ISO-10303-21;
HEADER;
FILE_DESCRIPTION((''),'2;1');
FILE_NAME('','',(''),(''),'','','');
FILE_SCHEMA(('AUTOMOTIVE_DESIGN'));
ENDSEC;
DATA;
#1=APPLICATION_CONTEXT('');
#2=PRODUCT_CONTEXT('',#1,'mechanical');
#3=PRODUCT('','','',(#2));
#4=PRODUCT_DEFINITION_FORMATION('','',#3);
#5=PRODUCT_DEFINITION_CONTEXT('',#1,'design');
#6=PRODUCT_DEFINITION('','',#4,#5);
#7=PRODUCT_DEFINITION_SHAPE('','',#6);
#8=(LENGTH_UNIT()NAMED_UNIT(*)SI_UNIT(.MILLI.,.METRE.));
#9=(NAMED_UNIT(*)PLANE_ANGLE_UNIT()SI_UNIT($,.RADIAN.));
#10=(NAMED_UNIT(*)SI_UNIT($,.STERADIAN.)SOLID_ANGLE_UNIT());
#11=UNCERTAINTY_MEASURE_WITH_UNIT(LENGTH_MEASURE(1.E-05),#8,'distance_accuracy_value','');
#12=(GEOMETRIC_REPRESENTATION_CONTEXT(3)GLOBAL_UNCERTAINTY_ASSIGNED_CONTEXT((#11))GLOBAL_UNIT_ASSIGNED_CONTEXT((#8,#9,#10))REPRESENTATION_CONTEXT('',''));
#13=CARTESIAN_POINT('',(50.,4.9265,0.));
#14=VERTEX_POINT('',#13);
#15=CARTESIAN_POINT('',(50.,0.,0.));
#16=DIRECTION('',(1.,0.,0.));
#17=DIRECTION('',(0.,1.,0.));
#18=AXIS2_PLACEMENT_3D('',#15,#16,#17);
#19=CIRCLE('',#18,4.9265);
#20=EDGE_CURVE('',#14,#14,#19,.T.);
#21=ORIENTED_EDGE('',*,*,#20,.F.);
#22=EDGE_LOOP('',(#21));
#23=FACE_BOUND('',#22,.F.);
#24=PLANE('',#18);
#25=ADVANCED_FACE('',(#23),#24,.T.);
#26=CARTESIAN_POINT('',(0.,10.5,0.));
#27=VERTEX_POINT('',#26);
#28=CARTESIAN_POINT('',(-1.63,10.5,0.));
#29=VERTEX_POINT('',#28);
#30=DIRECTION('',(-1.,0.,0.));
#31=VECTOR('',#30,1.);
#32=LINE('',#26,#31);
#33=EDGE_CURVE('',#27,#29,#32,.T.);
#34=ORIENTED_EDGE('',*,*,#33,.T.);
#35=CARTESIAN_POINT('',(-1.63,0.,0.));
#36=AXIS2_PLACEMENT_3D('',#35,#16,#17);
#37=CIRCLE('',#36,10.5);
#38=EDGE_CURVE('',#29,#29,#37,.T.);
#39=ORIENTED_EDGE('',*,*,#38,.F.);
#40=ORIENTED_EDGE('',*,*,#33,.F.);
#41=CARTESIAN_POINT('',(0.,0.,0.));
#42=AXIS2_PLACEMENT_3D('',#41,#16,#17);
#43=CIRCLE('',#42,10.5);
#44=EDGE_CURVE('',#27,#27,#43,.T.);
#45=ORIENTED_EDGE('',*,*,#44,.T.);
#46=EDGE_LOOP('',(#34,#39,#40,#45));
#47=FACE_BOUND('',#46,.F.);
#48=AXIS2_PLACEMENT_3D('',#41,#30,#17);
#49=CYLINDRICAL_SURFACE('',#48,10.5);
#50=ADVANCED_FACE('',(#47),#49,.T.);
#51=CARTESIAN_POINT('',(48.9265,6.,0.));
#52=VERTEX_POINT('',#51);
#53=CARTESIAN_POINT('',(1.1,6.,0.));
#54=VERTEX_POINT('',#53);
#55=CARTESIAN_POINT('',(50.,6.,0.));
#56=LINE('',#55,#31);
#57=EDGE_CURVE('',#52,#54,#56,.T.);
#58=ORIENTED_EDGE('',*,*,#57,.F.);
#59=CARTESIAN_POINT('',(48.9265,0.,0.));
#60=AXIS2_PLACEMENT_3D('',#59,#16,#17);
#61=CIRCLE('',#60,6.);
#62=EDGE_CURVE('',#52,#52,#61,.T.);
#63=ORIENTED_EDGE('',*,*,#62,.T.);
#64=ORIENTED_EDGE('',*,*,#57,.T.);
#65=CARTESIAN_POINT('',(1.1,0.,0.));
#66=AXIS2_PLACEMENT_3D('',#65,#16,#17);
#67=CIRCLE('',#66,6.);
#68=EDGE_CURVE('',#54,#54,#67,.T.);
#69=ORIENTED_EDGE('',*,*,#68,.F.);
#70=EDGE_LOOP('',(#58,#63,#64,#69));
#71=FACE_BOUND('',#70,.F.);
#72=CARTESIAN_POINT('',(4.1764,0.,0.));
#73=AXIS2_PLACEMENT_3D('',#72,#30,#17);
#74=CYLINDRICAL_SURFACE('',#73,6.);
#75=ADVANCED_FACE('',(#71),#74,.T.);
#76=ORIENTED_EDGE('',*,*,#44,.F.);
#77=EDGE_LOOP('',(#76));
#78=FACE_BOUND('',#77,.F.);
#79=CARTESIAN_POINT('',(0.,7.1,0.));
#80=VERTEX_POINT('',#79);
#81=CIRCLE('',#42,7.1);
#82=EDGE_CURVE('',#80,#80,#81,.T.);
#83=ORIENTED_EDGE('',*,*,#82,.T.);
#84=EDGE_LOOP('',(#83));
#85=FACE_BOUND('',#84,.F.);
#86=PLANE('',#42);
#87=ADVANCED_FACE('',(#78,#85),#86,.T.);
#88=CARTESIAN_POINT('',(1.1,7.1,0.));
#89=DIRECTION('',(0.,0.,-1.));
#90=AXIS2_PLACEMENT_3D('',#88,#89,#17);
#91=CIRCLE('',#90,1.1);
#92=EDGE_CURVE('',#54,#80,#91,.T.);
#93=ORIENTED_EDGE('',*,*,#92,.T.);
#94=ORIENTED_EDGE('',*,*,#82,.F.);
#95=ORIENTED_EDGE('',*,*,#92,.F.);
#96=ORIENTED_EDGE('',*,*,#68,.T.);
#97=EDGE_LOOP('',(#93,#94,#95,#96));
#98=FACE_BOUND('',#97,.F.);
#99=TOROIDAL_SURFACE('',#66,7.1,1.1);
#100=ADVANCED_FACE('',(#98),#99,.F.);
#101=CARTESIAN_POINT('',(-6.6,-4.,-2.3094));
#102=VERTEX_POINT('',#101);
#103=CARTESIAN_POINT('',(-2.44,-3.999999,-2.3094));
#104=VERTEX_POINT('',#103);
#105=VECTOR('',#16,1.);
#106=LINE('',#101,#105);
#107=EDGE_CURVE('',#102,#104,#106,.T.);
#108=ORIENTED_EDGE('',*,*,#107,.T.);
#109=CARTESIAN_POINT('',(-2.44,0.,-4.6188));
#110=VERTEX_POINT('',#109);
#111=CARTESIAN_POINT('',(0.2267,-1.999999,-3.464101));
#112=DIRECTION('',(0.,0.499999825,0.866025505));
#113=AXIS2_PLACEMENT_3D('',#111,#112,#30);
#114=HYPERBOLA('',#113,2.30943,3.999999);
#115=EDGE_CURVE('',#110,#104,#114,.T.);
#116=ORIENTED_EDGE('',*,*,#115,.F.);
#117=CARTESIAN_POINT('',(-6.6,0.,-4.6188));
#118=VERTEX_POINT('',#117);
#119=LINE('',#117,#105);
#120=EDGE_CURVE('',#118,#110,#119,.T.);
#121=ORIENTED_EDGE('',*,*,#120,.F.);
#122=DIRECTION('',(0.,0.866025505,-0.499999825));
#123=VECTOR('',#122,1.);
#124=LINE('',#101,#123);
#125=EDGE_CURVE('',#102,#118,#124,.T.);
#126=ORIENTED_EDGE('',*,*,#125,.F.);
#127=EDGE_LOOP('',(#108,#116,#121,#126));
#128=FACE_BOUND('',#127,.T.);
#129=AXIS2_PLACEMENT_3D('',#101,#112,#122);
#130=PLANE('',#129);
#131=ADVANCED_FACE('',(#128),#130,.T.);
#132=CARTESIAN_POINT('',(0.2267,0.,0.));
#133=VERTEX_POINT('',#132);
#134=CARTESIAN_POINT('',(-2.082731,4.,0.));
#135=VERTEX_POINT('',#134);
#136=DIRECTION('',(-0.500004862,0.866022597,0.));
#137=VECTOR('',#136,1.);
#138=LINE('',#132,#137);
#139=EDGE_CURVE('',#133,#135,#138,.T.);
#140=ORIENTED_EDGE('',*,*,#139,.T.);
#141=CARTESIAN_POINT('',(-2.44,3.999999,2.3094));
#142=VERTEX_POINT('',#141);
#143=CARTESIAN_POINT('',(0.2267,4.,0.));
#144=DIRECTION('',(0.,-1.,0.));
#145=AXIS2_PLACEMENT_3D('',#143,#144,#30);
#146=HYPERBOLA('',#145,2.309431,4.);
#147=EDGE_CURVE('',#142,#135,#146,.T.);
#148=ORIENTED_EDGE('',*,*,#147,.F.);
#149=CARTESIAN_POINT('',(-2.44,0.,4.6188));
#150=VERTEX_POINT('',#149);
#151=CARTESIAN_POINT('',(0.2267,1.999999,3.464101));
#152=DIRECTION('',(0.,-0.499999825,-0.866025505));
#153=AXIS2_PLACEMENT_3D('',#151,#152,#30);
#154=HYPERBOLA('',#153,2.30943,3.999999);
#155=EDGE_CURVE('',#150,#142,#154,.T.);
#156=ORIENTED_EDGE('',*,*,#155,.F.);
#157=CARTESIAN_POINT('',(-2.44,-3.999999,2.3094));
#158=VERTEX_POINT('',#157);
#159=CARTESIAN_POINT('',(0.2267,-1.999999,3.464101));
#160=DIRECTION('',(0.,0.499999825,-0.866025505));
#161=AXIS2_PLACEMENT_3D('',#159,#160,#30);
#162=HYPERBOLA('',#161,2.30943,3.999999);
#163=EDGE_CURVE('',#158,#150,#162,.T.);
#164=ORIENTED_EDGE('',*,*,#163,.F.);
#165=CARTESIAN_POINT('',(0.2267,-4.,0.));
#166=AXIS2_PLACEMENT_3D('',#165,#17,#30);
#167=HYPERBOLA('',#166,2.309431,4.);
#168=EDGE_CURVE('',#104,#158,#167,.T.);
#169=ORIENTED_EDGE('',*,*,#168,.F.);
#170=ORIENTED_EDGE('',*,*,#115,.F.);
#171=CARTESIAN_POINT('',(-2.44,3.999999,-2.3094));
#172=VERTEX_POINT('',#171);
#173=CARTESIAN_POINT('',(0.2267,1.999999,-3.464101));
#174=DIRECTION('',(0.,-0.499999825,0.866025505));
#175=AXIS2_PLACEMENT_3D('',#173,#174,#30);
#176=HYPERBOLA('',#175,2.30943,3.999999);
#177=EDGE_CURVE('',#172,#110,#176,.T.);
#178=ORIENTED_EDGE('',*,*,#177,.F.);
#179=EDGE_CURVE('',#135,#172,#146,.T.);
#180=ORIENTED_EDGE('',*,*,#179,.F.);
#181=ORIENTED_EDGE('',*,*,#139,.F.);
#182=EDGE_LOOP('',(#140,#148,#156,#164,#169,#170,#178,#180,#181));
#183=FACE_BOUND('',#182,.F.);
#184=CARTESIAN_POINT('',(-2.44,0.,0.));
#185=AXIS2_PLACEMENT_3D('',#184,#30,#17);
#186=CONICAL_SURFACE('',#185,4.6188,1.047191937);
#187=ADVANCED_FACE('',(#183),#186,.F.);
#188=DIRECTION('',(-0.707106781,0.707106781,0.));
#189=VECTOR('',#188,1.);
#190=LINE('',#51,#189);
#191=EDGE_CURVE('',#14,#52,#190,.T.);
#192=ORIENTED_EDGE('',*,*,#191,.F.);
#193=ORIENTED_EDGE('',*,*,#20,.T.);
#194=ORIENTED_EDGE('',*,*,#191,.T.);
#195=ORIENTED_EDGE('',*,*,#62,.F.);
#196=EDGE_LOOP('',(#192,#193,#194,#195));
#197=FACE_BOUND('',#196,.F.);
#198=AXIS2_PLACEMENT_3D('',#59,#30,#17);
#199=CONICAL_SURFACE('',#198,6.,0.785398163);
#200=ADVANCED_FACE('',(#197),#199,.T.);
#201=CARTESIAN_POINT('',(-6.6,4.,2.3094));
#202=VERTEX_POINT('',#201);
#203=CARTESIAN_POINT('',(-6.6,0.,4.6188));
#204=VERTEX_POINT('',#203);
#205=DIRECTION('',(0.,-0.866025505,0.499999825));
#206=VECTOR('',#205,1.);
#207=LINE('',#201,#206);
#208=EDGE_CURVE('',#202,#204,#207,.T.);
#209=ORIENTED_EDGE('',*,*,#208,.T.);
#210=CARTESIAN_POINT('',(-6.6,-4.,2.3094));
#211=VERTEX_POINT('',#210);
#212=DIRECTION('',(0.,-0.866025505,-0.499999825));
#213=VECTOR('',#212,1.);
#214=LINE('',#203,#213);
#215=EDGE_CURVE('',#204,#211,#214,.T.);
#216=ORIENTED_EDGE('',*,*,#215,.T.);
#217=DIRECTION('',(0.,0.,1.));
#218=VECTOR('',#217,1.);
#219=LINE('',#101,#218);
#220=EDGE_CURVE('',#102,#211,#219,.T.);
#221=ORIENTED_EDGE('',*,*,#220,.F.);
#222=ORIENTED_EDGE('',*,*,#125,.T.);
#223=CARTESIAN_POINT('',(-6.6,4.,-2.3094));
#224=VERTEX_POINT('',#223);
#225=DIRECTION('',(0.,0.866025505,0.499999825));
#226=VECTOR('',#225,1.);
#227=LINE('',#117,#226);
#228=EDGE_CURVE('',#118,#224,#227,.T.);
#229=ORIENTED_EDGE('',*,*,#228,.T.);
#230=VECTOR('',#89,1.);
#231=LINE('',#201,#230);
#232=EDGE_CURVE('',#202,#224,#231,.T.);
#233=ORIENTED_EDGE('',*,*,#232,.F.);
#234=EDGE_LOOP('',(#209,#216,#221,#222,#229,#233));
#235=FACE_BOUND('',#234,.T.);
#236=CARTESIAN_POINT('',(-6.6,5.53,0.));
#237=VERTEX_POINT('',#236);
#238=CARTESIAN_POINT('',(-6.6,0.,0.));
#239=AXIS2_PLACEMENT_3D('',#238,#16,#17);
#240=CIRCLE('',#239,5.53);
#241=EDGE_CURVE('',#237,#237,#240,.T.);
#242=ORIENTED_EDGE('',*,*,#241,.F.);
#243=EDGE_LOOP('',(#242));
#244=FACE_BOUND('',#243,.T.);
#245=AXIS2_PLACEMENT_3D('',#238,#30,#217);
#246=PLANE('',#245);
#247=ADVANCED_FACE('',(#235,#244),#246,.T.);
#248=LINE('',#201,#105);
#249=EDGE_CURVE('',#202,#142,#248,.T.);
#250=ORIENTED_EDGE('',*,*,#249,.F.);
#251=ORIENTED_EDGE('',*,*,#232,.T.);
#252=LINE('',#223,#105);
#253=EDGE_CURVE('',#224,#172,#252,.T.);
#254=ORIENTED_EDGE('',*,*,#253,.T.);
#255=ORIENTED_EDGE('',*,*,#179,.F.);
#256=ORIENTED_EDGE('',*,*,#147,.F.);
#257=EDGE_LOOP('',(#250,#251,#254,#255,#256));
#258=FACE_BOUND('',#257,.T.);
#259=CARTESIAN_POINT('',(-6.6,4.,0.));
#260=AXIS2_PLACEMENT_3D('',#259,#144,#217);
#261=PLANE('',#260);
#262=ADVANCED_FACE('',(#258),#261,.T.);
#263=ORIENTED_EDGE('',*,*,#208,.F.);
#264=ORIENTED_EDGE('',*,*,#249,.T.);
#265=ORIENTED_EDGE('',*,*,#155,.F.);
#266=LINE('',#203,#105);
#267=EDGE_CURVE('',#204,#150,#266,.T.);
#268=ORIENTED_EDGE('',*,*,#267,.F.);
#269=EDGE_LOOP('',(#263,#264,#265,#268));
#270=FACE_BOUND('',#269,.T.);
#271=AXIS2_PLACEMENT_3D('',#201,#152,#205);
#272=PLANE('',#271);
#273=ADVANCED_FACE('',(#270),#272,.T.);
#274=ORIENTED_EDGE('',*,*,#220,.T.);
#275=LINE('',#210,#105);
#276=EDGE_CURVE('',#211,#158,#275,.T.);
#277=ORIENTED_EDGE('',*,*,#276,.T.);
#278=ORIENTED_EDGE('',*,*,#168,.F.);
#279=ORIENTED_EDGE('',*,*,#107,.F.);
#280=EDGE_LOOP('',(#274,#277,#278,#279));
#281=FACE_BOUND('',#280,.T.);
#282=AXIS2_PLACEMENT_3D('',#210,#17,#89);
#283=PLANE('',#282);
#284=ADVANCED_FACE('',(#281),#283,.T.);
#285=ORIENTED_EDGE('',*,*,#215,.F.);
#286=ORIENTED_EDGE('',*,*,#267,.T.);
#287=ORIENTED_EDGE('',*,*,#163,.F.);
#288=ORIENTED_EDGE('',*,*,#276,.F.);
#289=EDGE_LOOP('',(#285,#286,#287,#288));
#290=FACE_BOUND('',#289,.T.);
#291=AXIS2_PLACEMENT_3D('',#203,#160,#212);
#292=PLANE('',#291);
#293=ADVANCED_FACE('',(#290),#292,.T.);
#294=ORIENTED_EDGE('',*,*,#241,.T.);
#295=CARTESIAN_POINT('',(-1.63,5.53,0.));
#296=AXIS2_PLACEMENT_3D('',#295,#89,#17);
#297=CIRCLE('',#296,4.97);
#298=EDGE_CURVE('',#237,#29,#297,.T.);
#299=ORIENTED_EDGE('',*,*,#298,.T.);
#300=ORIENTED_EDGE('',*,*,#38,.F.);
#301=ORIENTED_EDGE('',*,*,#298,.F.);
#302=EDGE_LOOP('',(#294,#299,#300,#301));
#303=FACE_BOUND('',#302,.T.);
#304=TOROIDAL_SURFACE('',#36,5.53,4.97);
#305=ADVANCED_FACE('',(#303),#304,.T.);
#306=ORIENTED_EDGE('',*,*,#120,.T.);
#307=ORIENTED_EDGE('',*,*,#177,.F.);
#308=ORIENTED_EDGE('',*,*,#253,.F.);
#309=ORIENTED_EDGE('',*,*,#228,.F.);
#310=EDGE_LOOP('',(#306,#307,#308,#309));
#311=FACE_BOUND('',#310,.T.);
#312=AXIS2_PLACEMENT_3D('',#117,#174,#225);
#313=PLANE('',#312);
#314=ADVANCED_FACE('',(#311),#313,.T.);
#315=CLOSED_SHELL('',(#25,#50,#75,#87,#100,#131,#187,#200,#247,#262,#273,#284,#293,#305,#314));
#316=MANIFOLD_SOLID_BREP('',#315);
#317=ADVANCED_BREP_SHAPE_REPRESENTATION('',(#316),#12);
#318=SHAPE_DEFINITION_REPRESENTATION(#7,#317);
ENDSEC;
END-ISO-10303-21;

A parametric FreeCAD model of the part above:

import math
import FreeCAD as App
import Part
import Sketcher
Q = App.Units.Quantity


def edges_at(feature, points):
    """Names of the edges that pass closest to the given points."""
    edges = feature.Shape.Edges
    near = lambda p: min(range(len(edges)), key=lambda i: edges[i].distToShape(Part.Vertex(*p))[0])
    return sorted({f"Edge{near(p) + 1}" for p in points})


def add_polygon(sketch, points):
    """Adds a closed chain of lines whose ends are joined by coincident constraints."""
    first, n = sketch.GeometryCount, len(points)
    for a, b in zip(points, points[1:] + points[:1]):
        sketch.addGeometry(Part.LineSegment(App.Vector(*a, 0), App.Vector(*b, 0)), False)
    for i in range(n):
        sketch.addConstraint(Sketcher.Constraint("Coincident", first + i, 2, first + (i + 1) % n, 1))

doc = App.newDocument("Part")
body = doc.addObject("PartDesign::Body", "Body")

# Sketch on XY plane
sketch1 = body.newObject("Sketcher::SketchObject", "Sketch")
sketch1.AttachmentSupport = (doc.getObject("XY_Plane"), [""])
sketch1.MapMode = "FlatFace"
add_polygon(sketch1, [(0.2, 0), (50, 0), (50, 6), (0, 6), (0, 10.5), (-6.6, 10.5), (-6.6, 4.6), (-2.4, 4.6)])  # lines 0-7
sketch1.addConstraint(Sketcher.Constraint("Horizontal", 0))
sketch1.addConstraint(Sketcher.Constraint("Vertical", 1))
sketch1.addConstraint(Sketcher.Constraint("Horizontal", 2))
sketch1.addConstraint(Sketcher.Constraint("Vertical", 3))
sketch1.addConstraint(Sketcher.Constraint("Horizontal", 4))
sketch1.addConstraint(Sketcher.Constraint("Vertical", 5))
sketch1.addConstraint(Sketcher.Constraint("Horizontal", 6))
sketch1.addConstraint(Sketcher.Constraint("PointOnObject", 0, 2, -1))
sketch1.addConstraint(Sketcher.Constraint("PointOnObject", 2, 2, -2))
sketch1.addConstraint(Sketcher.Constraint("DistanceX", 2, 2, 2, 1, 50.0))
sketch1.addConstraint(Sketcher.Constraint("Angle", 7, Q("-59.9997 deg")))
sketch1.addConstraint(Sketcher.Constraint("DistanceX", 4, 2, 4, 1, 6.6))
sketch1.addConstraint(Sketcher.Constraint("DistanceX", 6, 1, 6, 2, 4.16))
sketch1.addConstraint(Sketcher.Constraint("DistanceY", 1, 1, 1, 2, 6.0))
sketch1.addConstraint(Sketcher.Constraint("DistanceY", 3, 1, 3, 2, 4.5))
sketch1.addConstraint(Sketcher.Constraint("DistanceX", 0, 1, 0, 2, 49.7733))
revolution = body.newObject("PartDesign::Revolution", "Revolution")
revolution.Profile = sketch1
revolution.ReferenceAxis = (sketch1, ["H_Axis"])
revolution.Angle = 360

# Sketch on YZ plane
sketch2 = body.newObject("Sketcher::SketchObject", "Sketch001")
sketch2.AttachmentSupport = (doc.getObject("YZ_Plane"), [""])
sketch2.MapMode = "FlatFace"
sketch2.AttachmentOffset = App.Placement(App.Vector(0, 0, -6.6), App.Rotation())
sketch2.addGeometry(Part.LineSegment(App.Vector(4, 2.3, 0), App.Vector(0, 4.6, 0)), False)
sketch2.addGeometry(Part.ArcOfCircle(Part.Circle(App.Vector(0, 0, 0), App.Vector(0, 0, 1), 4.6), math.radians(30), math.radians(90)), False)
sketch2.addGeometry(Part.ArcOfCircle(Part.Circle(App.Vector(0, 0, 0), App.Vector(0, 0, 1), 4.6), math.radians(90), math.radians(150)), False)
sketch2.addGeometry(Part.LineSegment(App.Vector(0, 4.6, 0), App.Vector(-4, 2.3, 0)), False)
sketch2.addGeometry(Part.ArcOfCircle(Part.Circle(App.Vector(0, 0, 0), App.Vector(0, 0, 1), 4.6), math.radians(-30), math.radians(30)), False)
sketch2.addGeometry(Part.LineSegment(App.Vector(4, 2.3, 0), App.Vector(4, -2.3, 0)), False)
sketch2.addGeometry(Part.LineSegment(App.Vector(-4, 2.3, 0), App.Vector(-4, -2.3, 0)), False)
sketch2.addGeometry(Part.ArcOfCircle(Part.Circle(App.Vector(0, 0, 0), App.Vector(0, 0, 1), 4.6), math.radians(150), math.radians(210)), False)
sketch2.addGeometry(Part.LineSegment(App.Vector(-4, -2.3, 0), App.Vector(0, -4.6, 0)), False)
sketch2.addGeometry(Part.ArcOfCircle(Part.Circle(App.Vector(0, 0, 0), App.Vector(0, 0, 1), 4.6), math.radians(-150), math.radians(-90)), False)
sketch2.addGeometry(Part.ArcOfCircle(Part.Circle(App.Vector(0, 0, 0), App.Vector(0, 0, 1), 4.6), math.radians(-90), math.radians(-30)), False)
sketch2.addGeometry(Part.LineSegment(App.Vector(0, -4.6, 0), App.Vector(4, -2.3, 0)), False)
sketch2.addConstraint(Sketcher.Constraint("Coincident", 0, 1, 1, 1))
sketch2.addConstraint(Sketcher.Constraint("Coincident", 1, 2, 0, 2))
sketch2.addConstraint(Sketcher.Constraint("Coincident", 2, 1, 3, 1))
sketch2.addConstraint(Sketcher.Constraint("Coincident", 3, 2, 2, 2))
sketch2.addConstraint(Sketcher.Constraint("Coincident", 4, 1, 5, 2))
sketch2.addConstraint(Sketcher.Constraint("Coincident", 5, 1, 4, 2))
sketch2.addConstraint(Sketcher.Constraint("Coincident", 6, 1, 7, 1))
sketch2.addConstraint(Sketcher.Constraint("Coincident", 7, 2, 6, 2))
sketch2.addConstraint(Sketcher.Constraint("Coincident", 8, 1, 9, 1))
sketch2.addConstraint(Sketcher.Constraint("Coincident", 9, 2, 8, 2))
sketch2.addConstraint(Sketcher.Constraint("Coincident", 10, 1, 11, 1))
sketch2.addConstraint(Sketcher.Constraint("Coincident", 11, 2, 10, 2))
sketch2.addConstraint(Sketcher.Constraint("Vertical", 5))
sketch2.addConstraint(Sketcher.Constraint("Vertical", 6))
sketch2.addConstraint(Sketcher.Constraint("Coincident", 1, 3, -1, 1))
sketch2.addConstraint(Sketcher.Constraint("Coincident", 2, 3, -1, 1))
sketch2.addConstraint(Sketcher.Constraint("Coincident", 4, 3, -1, 1))
sketch2.addConstraint(Sketcher.Constraint("Coincident", 7, 3, -1, 1))
sketch2.addConstraint(Sketcher.Constraint("Coincident", 9, 3, -1, 1))
sketch2.addConstraint(Sketcher.Constraint("Coincident", 10, 3, -1, 1))
sketch2.addConstraint(Sketcher.Constraint("Coincident", 2, 1, 1, 2))
sketch2.addConstraint(Sketcher.Constraint("Coincident", 5, 1, 0, 1))
sketch2.addConstraint(Sketcher.Constraint("Coincident", 6, 1, 3, 2))
sketch2.addConstraint(Sketcher.Constraint("Coincident", 8, 1, 7, 2))
sketch2.addConstraint(Sketcher.Constraint("Coincident", 10, 1, 9, 2))
sketch2.addConstraint(Sketcher.Constraint("PointOnObject", 1, 2, -2))
sketch2.addConstraint(Sketcher.Constraint("PointOnObject", 9, 2, -2))
sketch2.addConstraint(Sketcher.Constraint("Parallel", 0, 8))
sketch2.addConstraint(Sketcher.Constraint("Parallel", 3, 11))
sketch2.addConstraint(Sketcher.Constraint("Angle", 0, Q("150 deg")))
sketch2.addConstraint(Sketcher.Constraint("DistanceX", -1, 1, 0, 1, 4.0))
pad1 = body.newObject("PartDesign::Pad", "Pad")
pad1.Profile = sketch2
pad1.Type = "UpToFirst"
doc.recompute()

fillet = body.newObject("PartDesign::Fillet", "Fillet")
fillet.Base = (pad1, edges_at(pad1, [(-6.6, -10.5, 0)]))
fillet.Radius = 4.97
doc.recompute()

chamfer = body.newObject("PartDesign::Chamfer", "Chamfer")
chamfer.Base = (fillet, edges_at(fillet, [(50, -6, 0)]))
chamfer.ChamferType = "Two distances"
chamfer.Size = 1.0735
chamfer.Size2 = 1.0735
doc.recompute()

fillet2 = body.newObject("PartDesign::Fillet", "Fillet001")
fillet2.Base = (chamfer, edges_at(chamfer, [(0, -6, 0)]))
fillet2.Radius = 1.1

doc.recompute()
